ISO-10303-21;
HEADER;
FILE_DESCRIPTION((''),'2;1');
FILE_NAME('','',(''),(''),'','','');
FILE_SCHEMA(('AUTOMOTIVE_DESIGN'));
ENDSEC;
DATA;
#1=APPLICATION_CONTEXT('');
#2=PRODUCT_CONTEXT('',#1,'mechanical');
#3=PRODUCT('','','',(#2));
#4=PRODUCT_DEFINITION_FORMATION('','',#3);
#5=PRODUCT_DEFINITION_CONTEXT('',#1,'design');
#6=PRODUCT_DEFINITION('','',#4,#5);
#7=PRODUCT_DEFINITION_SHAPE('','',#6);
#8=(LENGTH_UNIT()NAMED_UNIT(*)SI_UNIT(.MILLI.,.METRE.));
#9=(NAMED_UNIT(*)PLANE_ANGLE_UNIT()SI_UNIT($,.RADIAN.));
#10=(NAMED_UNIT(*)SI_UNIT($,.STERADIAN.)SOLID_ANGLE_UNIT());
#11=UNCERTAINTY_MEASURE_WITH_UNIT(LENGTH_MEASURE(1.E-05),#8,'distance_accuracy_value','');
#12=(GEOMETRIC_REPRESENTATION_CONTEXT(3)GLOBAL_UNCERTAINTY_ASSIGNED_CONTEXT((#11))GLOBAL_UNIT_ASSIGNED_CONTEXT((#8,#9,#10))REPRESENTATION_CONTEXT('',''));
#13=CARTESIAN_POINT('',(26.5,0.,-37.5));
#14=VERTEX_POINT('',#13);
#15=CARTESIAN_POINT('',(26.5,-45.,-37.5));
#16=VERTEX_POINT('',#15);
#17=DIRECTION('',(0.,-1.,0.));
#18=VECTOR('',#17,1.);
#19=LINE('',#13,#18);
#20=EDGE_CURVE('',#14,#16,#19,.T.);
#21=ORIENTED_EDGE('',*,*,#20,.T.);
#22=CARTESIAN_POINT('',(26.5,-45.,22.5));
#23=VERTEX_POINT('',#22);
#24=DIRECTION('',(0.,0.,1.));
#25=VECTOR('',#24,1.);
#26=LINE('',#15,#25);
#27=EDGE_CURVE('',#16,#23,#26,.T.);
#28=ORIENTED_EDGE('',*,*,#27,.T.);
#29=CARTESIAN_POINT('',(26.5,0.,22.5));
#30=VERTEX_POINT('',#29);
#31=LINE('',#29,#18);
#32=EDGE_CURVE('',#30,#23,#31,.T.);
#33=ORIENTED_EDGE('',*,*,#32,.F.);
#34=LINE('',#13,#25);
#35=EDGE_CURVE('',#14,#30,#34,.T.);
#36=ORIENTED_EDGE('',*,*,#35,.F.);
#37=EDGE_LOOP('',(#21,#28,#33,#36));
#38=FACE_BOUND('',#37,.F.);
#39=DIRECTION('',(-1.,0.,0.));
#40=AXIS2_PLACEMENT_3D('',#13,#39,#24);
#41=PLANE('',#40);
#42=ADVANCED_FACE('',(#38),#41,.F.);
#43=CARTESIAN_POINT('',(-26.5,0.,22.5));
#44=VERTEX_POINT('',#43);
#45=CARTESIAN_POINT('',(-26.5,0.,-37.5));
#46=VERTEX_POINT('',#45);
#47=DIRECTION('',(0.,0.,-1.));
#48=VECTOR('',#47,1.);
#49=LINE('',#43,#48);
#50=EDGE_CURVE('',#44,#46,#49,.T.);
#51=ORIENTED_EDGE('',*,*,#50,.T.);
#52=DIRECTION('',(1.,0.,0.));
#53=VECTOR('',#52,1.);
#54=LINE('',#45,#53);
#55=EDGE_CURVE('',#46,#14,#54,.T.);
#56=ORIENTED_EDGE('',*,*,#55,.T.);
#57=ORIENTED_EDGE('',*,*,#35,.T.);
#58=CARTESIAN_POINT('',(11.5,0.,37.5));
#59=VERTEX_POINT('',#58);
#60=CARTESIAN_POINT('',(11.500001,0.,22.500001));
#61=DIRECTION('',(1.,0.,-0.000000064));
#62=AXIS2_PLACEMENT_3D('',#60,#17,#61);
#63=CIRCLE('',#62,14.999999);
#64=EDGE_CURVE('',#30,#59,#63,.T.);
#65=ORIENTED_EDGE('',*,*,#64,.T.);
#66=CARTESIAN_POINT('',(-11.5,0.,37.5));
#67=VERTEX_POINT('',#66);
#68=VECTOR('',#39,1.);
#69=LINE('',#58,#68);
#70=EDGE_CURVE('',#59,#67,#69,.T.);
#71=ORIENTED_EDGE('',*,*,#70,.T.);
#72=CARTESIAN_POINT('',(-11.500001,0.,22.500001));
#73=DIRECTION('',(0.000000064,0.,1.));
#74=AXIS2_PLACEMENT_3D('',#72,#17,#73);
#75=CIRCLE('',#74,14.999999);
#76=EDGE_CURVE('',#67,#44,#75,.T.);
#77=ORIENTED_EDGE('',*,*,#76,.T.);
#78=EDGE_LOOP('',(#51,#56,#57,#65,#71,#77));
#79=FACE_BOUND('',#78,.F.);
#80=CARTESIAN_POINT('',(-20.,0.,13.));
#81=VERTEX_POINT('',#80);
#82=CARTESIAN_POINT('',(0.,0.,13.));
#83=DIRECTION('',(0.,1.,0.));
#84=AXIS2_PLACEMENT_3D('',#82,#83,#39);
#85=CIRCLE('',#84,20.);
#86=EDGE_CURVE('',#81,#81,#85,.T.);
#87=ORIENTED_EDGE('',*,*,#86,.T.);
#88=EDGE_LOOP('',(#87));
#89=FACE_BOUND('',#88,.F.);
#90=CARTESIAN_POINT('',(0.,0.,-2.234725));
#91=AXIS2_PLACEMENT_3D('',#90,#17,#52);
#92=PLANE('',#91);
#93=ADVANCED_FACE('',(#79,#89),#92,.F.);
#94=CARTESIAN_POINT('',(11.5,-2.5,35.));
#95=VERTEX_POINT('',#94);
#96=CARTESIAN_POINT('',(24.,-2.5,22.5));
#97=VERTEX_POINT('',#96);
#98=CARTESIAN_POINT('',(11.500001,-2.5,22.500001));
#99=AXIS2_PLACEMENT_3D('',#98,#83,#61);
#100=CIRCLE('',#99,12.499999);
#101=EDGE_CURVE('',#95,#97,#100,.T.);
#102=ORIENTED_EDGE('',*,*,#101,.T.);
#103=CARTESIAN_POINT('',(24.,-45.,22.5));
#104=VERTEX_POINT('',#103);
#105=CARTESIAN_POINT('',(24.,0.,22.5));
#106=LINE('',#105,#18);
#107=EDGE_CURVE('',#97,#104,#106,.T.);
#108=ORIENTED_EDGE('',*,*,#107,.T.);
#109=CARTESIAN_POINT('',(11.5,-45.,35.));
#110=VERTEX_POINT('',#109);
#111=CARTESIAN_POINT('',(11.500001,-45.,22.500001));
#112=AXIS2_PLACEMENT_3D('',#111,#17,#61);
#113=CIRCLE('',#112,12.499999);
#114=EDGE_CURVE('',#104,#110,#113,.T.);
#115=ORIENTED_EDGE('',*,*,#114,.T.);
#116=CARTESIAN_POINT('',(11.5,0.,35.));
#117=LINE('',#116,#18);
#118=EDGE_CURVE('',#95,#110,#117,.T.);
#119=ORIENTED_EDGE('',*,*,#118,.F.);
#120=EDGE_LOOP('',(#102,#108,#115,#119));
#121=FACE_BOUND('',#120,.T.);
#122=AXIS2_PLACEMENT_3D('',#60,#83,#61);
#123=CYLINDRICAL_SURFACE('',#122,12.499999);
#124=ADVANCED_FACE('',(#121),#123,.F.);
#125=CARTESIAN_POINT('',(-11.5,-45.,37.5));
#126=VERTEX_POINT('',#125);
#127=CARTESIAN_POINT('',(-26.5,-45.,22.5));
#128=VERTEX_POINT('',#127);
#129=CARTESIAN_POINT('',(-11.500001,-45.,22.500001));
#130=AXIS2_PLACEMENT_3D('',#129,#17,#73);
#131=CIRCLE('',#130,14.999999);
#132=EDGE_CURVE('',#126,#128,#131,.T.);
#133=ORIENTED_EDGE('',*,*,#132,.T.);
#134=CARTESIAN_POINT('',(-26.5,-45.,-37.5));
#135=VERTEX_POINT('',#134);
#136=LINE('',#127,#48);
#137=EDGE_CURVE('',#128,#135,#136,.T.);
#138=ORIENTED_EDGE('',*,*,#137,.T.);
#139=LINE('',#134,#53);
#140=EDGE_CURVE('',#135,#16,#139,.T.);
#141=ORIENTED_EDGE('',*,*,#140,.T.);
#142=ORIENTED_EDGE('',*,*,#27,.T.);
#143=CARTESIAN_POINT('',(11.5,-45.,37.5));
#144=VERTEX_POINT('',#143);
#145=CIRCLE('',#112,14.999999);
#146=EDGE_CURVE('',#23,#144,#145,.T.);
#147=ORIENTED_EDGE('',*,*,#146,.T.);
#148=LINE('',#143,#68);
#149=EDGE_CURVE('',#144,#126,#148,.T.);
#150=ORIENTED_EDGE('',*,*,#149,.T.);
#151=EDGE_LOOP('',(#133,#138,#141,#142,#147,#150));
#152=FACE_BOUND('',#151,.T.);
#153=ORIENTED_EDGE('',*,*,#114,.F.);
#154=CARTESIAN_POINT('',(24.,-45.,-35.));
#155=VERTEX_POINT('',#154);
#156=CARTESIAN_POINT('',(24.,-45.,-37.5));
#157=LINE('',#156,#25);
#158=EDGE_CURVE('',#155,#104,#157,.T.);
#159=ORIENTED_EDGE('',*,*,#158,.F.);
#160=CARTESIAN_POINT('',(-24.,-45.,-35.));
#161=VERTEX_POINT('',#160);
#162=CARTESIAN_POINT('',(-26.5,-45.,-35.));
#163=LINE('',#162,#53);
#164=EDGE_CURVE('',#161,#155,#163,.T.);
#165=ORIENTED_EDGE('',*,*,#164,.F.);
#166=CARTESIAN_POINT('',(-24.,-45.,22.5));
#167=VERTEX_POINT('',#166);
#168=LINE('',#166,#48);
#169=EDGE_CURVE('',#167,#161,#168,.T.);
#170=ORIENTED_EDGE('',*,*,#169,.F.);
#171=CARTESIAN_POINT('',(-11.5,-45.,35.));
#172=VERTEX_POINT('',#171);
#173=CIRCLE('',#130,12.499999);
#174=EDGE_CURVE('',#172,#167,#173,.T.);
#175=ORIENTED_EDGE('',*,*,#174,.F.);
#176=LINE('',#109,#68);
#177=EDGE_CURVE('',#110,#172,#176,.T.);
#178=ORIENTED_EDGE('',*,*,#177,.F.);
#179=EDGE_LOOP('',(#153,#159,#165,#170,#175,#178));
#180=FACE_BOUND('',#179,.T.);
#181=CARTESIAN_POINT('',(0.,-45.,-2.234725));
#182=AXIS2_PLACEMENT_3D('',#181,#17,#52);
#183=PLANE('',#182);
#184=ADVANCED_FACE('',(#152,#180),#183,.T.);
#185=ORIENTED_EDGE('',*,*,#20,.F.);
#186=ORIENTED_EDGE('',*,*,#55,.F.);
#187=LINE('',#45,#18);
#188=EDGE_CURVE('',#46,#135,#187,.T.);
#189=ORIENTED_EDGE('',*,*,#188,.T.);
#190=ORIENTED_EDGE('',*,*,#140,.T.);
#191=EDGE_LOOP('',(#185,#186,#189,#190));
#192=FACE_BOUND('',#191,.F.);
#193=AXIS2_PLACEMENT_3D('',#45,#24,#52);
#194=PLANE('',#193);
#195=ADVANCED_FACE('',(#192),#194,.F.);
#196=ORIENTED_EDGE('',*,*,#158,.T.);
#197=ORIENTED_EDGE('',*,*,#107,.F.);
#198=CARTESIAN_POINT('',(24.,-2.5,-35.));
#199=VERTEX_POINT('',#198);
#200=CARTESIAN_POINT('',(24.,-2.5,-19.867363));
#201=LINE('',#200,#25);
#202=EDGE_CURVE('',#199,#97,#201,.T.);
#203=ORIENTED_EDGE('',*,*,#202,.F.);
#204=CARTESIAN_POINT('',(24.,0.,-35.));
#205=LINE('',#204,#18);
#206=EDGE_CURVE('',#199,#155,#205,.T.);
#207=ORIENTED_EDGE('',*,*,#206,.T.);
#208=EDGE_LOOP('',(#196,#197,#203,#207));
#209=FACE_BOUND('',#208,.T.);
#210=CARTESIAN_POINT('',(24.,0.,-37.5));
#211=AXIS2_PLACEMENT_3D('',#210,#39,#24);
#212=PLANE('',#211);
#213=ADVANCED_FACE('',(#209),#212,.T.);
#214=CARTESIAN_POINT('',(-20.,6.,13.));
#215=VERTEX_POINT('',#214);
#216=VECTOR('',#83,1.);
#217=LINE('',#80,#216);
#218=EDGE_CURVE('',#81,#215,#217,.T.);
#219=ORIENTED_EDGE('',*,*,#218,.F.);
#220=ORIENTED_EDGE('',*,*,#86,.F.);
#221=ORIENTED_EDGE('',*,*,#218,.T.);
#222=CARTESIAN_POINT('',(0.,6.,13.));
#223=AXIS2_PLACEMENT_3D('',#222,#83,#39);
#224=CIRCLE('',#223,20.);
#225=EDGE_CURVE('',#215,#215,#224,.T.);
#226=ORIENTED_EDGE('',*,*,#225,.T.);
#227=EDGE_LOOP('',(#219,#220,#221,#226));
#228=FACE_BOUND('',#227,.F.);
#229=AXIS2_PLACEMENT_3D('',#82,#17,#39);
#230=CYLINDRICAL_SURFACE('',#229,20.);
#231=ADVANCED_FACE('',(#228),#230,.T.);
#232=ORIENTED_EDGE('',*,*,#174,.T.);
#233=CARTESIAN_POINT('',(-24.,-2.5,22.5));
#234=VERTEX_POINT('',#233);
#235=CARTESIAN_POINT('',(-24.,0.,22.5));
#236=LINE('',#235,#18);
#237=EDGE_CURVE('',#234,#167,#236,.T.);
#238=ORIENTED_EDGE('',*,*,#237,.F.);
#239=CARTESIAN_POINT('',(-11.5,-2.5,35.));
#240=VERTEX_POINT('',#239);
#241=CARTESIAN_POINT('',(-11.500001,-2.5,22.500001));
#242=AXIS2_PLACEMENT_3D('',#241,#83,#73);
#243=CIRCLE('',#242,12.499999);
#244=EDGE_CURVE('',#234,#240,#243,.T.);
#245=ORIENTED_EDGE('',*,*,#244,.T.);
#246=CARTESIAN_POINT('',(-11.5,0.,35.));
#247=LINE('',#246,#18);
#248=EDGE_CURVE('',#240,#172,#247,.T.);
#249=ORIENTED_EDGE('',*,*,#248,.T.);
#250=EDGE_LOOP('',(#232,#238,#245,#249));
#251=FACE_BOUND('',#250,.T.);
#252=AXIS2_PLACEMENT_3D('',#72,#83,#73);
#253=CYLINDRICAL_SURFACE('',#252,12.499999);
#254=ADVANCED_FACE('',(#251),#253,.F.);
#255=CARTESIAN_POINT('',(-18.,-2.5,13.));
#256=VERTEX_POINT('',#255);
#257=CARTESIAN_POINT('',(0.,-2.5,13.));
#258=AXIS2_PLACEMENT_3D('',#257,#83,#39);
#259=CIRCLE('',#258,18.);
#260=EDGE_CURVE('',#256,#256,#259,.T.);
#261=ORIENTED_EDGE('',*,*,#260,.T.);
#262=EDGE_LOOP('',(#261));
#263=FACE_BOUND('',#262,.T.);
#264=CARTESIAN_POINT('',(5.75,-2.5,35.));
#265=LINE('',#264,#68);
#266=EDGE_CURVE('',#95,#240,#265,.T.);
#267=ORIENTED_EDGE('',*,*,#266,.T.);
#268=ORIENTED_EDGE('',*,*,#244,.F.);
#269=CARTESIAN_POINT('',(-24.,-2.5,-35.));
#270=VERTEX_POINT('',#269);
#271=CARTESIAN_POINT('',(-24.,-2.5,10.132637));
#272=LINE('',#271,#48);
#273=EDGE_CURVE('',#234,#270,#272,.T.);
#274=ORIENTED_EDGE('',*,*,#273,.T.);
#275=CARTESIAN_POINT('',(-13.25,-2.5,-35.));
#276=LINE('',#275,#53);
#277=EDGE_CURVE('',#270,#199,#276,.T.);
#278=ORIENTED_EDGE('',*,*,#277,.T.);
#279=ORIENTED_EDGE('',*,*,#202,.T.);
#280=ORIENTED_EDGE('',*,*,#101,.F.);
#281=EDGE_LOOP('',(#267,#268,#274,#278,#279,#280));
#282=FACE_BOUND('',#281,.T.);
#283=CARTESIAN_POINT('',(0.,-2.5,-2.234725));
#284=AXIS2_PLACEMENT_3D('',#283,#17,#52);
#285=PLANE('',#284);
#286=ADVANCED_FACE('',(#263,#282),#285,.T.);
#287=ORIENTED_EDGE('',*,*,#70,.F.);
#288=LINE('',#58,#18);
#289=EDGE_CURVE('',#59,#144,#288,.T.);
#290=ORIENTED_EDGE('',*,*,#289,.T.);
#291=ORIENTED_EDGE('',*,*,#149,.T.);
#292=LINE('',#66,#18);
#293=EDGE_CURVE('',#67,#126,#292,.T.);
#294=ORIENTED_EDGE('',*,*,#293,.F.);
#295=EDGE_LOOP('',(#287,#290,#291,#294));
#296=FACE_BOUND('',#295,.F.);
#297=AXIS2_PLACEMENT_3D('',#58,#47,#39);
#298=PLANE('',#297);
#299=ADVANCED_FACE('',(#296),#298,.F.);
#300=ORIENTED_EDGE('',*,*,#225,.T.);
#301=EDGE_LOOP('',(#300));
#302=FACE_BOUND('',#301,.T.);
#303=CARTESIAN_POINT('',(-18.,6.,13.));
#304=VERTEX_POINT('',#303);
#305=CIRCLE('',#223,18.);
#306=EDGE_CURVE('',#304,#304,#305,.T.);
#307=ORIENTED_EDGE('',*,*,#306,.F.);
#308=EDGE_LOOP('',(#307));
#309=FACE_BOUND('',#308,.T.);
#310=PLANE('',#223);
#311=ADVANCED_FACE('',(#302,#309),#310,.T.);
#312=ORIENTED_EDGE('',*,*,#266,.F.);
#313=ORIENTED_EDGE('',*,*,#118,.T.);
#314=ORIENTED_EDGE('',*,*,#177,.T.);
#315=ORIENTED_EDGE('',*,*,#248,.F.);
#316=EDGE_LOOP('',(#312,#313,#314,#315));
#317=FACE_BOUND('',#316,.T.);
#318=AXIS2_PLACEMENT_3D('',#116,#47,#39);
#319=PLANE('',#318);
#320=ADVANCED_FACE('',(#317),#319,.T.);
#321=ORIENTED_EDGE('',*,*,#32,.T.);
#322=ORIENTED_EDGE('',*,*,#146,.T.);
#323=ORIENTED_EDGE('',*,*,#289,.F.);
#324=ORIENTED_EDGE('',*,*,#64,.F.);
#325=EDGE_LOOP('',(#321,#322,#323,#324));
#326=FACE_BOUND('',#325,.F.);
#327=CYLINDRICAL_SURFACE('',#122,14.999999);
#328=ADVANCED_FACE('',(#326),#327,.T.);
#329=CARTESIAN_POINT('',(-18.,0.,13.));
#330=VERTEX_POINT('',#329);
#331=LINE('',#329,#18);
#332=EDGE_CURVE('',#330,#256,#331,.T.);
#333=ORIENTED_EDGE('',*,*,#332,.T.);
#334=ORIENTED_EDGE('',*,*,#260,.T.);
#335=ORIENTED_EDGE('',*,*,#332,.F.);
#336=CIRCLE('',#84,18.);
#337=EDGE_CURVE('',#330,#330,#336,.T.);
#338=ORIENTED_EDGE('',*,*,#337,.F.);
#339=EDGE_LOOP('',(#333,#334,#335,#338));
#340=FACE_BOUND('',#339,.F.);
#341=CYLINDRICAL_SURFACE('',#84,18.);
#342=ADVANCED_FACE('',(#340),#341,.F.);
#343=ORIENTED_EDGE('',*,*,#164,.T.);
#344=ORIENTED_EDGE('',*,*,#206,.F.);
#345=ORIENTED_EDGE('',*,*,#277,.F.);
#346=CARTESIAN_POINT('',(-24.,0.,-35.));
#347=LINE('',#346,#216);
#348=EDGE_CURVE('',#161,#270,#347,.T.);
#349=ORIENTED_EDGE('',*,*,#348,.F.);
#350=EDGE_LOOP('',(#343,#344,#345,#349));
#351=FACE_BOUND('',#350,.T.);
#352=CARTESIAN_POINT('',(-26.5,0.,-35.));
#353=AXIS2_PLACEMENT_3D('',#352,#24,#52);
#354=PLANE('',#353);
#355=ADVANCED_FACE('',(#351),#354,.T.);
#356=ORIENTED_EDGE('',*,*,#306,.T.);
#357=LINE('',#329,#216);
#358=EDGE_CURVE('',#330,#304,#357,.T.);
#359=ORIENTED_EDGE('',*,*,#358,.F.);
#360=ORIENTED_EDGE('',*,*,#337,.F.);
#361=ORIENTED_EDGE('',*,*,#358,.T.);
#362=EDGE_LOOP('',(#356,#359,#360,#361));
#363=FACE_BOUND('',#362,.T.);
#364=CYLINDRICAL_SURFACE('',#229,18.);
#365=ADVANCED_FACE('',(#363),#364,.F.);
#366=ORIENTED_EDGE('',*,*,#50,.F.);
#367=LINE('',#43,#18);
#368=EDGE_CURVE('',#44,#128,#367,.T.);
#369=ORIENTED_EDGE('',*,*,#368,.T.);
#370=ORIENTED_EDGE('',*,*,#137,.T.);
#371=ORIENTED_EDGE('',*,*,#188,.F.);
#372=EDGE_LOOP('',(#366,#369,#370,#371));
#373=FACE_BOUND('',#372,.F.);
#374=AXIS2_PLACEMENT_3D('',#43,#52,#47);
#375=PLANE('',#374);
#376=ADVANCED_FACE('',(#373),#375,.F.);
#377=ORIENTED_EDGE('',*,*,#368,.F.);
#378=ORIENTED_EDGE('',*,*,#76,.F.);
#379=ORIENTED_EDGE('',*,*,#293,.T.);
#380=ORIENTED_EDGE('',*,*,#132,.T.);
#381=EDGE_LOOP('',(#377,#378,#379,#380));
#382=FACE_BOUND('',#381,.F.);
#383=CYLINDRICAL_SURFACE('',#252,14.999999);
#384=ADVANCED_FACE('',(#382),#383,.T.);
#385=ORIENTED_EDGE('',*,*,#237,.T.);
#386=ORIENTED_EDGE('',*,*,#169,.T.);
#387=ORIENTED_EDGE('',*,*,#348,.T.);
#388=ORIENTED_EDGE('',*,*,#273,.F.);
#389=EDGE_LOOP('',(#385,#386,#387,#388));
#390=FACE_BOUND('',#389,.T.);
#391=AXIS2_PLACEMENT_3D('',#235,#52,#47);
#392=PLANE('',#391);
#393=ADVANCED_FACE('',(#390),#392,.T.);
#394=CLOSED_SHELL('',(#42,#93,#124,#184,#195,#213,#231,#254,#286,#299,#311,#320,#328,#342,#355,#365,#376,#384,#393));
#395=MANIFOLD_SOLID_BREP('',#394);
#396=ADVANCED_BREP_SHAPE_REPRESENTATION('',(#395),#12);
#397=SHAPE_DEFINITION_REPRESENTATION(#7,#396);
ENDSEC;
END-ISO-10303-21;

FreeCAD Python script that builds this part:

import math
import FreeCAD as App
import Part
import Sketcher

V = App.Vector
Q = App.Units.Quantity


def faces_at(feature, points):
    """Names of the faces that lie closest to the given points."""
    faces = feature.Shape.Faces
    near = lambda p: min(range(len(faces)), key=lambda i: faces[i].distToShape(Part.Vertex(*p))[0])
    return sorted({f"Face{near(p) + 1}" for p in points})

doc = App.newDocument("Part")
params = doc.addObject("Spreadsheet::Sheet", "Params")
for row, (alias, value) in enumerate([
    ("sketch1_radius", "14.999999 mm"),
    ("sketch1_width", "53 mm"),
    ("sketch1_height", "60 mm"),
    ("pad1_length", "45 mm"),
    ("thickness_wall", "2.5 mm"),
    ("sketch2_diameter", "36 mm"),
    ("pocket1_length", "25 mm"),
    ("sketch3_diameter", "40 mm"),
    ("sketch3_diameter2", "36 mm"),
    ("pad2_length", "6 mm"),
], start=1):
    params.set(f"A{row}", alias)
    params.set(f"B{row}", "=" + value)
    params.setAlias(f"B{row}", alias)

body = doc.addObject("PartDesign::Body", "Body")

sketch1 = body.newObject("Sketcher::SketchObject", "Sketch")
sketch1.AttachmentSupport = (doc.getObject("XZ_Plane"), [""])
sketch1.MapMode = "FlatFace"
sketch1.addGeometry([
    Part.LineSegment(V(-26, -38, 0), V(26, -38, 0)),
    Part.LineSegment(V(26, -38, 0), V(26, 22, 0)),
    Part.ArcOfCircle(Part.Circle(V(12, 23, 0), V(0, 0, 1), 15), math.radians(0), math.radians(90)),
    Part.LineSegment(V(12, 38, 0), V(-12, 38, 0)),
    Part.ArcOfCircle(Part.Circle(V(-12, 23, 0), V(0, 0, 1), 15), math.radians(90), math.radians(180)),
    Part.LineSegment(V(-26, 22, 0), V(-26, -38, 0)),
], False)
sketch1.addConstraint([
    Sketcher.Constraint("Coincident", 0, 2, 1, 1),
    Sketcher.Constraint("Tangent", 1, 2, 2, 1),
    Sketcher.Constraint("Tangent", 2, 2, 3, 1),
    Sketcher.Constraint("Tangent", 3, 2, 4, 1),
    Sketcher.Constraint("Tangent", 4, 2, 5, 1),
    Sketcher.Constraint("Coincident", 5, 2, 0, 1),
    Sketcher.Constraint("Horizontal", 0),
    Sketcher.Constraint("Vertical", 1),
    Sketcher.Constraint("Horizontal", 3),
    Sketcher.Constraint("Vertical", 5),
    Sketcher.Constraint("Equal", 2, 4),
    Sketcher.Constraint("Radius", 2, Q("14.999999 mm")),
    Sketcher.Constraint("DistanceX", 0, 1, 0, 2, Q("53 mm")),
    Sketcher.Constraint("DistanceY", 1, 1, 1, 2, Q("60 mm")),
    Sketcher.Constraint("DistanceX", -1, 1, 2, 3, Q("11.500001 mm")),
    Sketcher.Constraint("DistanceY", -1, 1, 2, 3, Q("22.500001 mm")),
])
sketch1.setExpression("Constraints[11]", "Params.sketch1_radius")
sketch1.setExpression("Constraints[12]", "Params.sketch1_width")
sketch1.setExpression("Constraints[13]", "Params.sketch1_height")
pad1 = body.newObject("PartDesign::Pad", "Pad")
pad1.Profile = sketch1
pad1.setExpression("Length", "Params.pad1_length")
doc.recompute()

thickness = body.newObject("PartDesign::Thickness", "Thickness")
thickness.Base = (pad1, faces_at(pad1, [(0, -45, 0)]))
thickness.setExpression("Value", "Params.thickness_wall")
thickness.Reversed = True
thickness.Join = "Arc"

sketch2 = body.newObject("Sketcher::SketchObject", "Sketch001")
sketch2.AttachmentSupport = (doc.getObject("XZ_Plane"), [""])
sketch2.MapMode = "FlatFace"
sketch2.addGeometry(Part.Circle(V(0, 13, 0), V(0, 0, 1), 18), False)
sketch2.addConstraint([
    Sketcher.Constraint("PointOnObject", 0, 3, -2),
    Sketcher.Constraint("Diameter", 0, Q("36 mm")),
    Sketcher.Constraint("DistanceY", -1, 1, 0, 3, Q("13 mm")),
])
sketch2.setExpression("Constraints[1]", "Params.sketch2_diameter")
pocket1 = body.newObject("PartDesign::Pocket", "Pocket")
pocket1.Profile = sketch2
pocket1.setExpression("Length", "Params.pocket1_length")
pocket1.Reversed = True

sketch3 = body.newObject("Sketcher::SketchObject", "Sketch002")
sketch3.AttachmentSupport = (doc.getObject("XZ_Plane"), [""])
sketch3.MapMode = "FlatFace"
sketch3.addGeometry([
    Part.Circle(V(0, 13, 0), V(0, 0, 1), 20),
    Part.Circle(V(0, 13, 0), V(0, 0, 1), 18),
], False)
sketch3.addConstraint([
    Sketcher.Constraint("Coincident", 1, 3, 0, 3),
    Sketcher.Constraint("PointOnObject", 0, 3, -2),
    Sketcher.Constraint("Diameter", 0, Q("40 mm")),
    Sketcher.Constraint("Diameter", 1, Q("36 mm")),
    Sketcher.Constraint("DistanceY", -1, 1, 0, 3, Q("13 mm")),
])
sketch3.setExpression("Constraints[2]", "Params.sketch3_diameter")
sketch3.setExpression("Constraints[3]", "Params.sketch3_diameter2")
pad2 = body.newObject("PartDesign::Pad", "Pad001")
pad2.Profile = sketch3
pad2.setExpression("Length", "Params.pad2_length")
pad2.Reversed = True

doc.recompute()
